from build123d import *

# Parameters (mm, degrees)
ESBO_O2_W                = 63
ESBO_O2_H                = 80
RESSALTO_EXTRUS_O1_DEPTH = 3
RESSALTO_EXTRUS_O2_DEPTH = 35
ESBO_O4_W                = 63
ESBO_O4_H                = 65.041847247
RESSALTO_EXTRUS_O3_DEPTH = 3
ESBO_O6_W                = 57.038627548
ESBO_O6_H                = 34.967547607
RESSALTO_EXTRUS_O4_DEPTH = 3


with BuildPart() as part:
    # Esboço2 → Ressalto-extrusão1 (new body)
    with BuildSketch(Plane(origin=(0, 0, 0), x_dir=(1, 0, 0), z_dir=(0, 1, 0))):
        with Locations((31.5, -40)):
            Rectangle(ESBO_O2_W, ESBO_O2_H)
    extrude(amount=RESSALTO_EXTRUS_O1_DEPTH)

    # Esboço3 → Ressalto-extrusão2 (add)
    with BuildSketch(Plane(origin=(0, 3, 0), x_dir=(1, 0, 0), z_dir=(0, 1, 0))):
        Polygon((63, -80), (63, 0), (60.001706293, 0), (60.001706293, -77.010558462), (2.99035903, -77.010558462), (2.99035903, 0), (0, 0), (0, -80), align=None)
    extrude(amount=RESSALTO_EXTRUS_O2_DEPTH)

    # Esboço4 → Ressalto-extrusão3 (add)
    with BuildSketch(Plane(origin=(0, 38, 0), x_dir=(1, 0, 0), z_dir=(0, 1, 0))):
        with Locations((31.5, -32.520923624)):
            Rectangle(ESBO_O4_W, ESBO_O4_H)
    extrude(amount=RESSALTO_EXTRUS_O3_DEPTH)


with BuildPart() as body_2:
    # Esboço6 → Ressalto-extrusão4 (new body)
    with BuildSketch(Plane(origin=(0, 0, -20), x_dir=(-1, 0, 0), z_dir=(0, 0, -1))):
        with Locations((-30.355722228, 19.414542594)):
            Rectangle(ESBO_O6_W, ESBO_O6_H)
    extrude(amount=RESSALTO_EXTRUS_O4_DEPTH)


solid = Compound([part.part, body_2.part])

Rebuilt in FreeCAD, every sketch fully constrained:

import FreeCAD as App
import Part
import Sketcher
from FreeCAD import Vector
Q = App.Units.Quantity

doc = App.newDocument("Part")
body = doc.addObject("PartDesign::Body", "Body")

# Sketch on XZ plane
sketch1 = body.newObject("Sketcher::SketchObject", "Sketch")
sketch1.AttachmentSupport = (doc.getObject("XZ_Plane"), [""])
sketch1.MapMode = "FlatFace"
sketch1.addGeometry(Part.LineSegment(Vector(0, 0, 0), Vector(0, 80, 0)), False)
sketch1.addGeometry(Part.LineSegment(Vector(0, 80, 0), Vector(63, 80, 0)), False)
sketch1.addGeometry(Part.LineSegment(Vector(63, 80, 0), Vector(63, 0, 0)), False)
sketch1.addGeometry(Part.LineSegment(Vector(63, 0, 0), Vector(0, 0, 0)), False)
sketch1.addConstraint(Sketcher.Constraint("Coincident", 0, 2, 1, 1))
sketch1.addConstraint(Sketcher.Constraint("Coincident", 1, 2, 2, 1))
sketch1.addConstraint(Sketcher.Constraint("Coincident", 2, 2, 3, 1))
sketch1.addConstraint(Sketcher.Constraint("Coincident", 3, 2, 0, 1))
sketch1.addConstraint(Sketcher.Constraint("Vertical", 0))
sketch1.addConstraint(Sketcher.Constraint("Horizontal", 1))
sketch1.addConstraint(Sketcher.Constraint("Vertical", 2))
sketch1.addConstraint(Sketcher.Constraint("Horizontal", 3))
sketch1.addConstraint(Sketcher.Constraint("Coincident", 3, 2, -1, 1))
sketch1.addConstraint(Sketcher.Constraint("DistanceX", 1, 1, 1, 2, Q("63 mm")))
sketch1.addConstraint(Sketcher.Constraint("DistanceY", 0, 1, 0, 2, Q("80 mm")))
pad1 = body.newObject("PartDesign::Pad", "Pad")
pad1.Profile = sketch1
pad1.Length = 3
pad1.Reversed = True

# Sketch on XZ plane
sketch2 = body.newObject("Sketcher::SketchObject", "Sketch001")
sketch2.AttachmentSupport = (doc.getObject("XZ_Plane"), [""])
sketch2.MapMode = "FlatFace"
sketch2.AttachmentOffset = App.Placement(Vector(0, 0, -3), App.Rotation())
sketch2.addGeometry(Part.LineSegment(Vector(63, 80, 0), Vector(63, 0, 0)), False)
sketch2.addGeometry(Part.LineSegment(Vector(63, 0, 0), Vector(60, 0, 0)), False)
sketch2.addGeometry(Part.LineSegment(Vector(60, 0, 0), Vector(60, 77, 0)), False)
sketch2.addGeometry(Part.LineSegment(Vector(60, 77, 0), Vector(3, 77, 0)), False)
sketch2.addGeometry(Part.LineSegment(Vector(3, 77, 0), Vector(3, 0, 0)), False)
sketch2.addGeometry(Part.LineSegment(Vector(3, 0, 0), Vector(0, 0, 0)), False)
sketch2.addGeometry(Part.LineSegment(Vector(0, 0, 0), Vector(0, 80, 0)), False)
sketch2.addGeometry(Part.LineSegment(Vector(0, 80, 0), Vector(63, 80, 0)), False)
sketch2.addConstraint(Sketcher.Constraint("Coincident", 0, 2, 1, 1))
sketch2.addConstraint(Sketcher.Constraint("Coincident", 1, 2, 2, 1))
sketch2.addConstraint(Sketcher.Constraint("Coincident", 2, 2, 3, 1))
sketch2.addConstraint(Sketcher.Constraint("Coincident", 3, 2, 4, 1))
sketch2.addConstraint(Sketcher.Constraint("Coincident", 4, 2, 5, 1))
sketch2.addConstraint(Sketcher.Constraint("Coincident", 5, 2, 6, 1))
sketch2.addConstraint(Sketcher.Constraint("Coincident", 6, 2, 7, 1))
sketch2.addConstraint(Sketcher.Constraint("Coincident", 7, 2, 0, 1))
sketch2.addConstraint(Sketcher.Constraint("Vertical", 0))
sketch2.addConstraint(Sketcher.Constraint("Horizontal", 1))
sketch2.addConstraint(Sketcher.Constraint("Vertical", 2))
sketch2.addConstraint(Sketcher.Constraint("Horizontal", 3))
sketch2.addConstraint(Sketcher.Constraint("Vertical", 4))
sketch2.addConstraint(Sketcher.Constraint("Horizontal", 5))
sketch2.addConstraint(Sketcher.Constraint("Vertical", 6))
sketch2.addConstraint(Sketcher.Constraint("Horizontal", 7))
sketch2.addConstraint(Sketcher.Constraint("Coincident", 5, 2, -1, 1))
sketch2.addConstraint(Sketcher.Constraint("PointOnObject", 0, 2, -1))
sketch2.addConstraint(Sketcher.Constraint("DistanceX", 7, 1, 7, 2, Q("63 mm")))
sketch2.addConstraint(Sketcher.Constraint("DistanceY", 0, 2, 0, 1, Q("80 mm")))
sketch2.addConstraint(Sketcher.Constraint("DistanceX", 5, 2, 5, 1, Q("2.990359 mm")))
sketch2.addConstraint(Sketcher.Constraint("DistanceY", 2, 1, 2, 2, Q("77.010558 mm")))
sketch2.addConstraint(Sketcher.Constraint("DistanceX", 1, 2, 1, 1, Q("2.998294 mm")))
pad2 = body.newObject("PartDesign::Pad", "Pad001")
pad2.Profile = sketch2
pad2.Length = 35
pad2.Reversed = True

# Sketch on XZ plane
sketch3 = body.newObject("Sketcher::SketchObject", "Sketch002")
sketch3.AttachmentSupport = (doc.getObject("XZ_Plane"), [""])
sketch3.MapMode = "FlatFace"
sketch3.AttachmentOffset = App.Placement(Vector(0, 0, -38), App.Rotation())
sketch3.addGeometry(Part.LineSegment(Vector(0, 0, 0), Vector(0, 65, 0)), False)
sketch3.addGeometry(Part.LineSegment(Vector(0, 65, 0), Vector(63, 65, 0)), False)
sketch3.addGeometry(Part.LineSegment(Vector(63, 65, 0), Vector(63, 0, 0)), False)
sketch3.addGeometry(Part.LineSegment(Vector(63, 0, 0), Vector(0, 0, 0)), False)
sketch3.addConstraint(Sketcher.Constraint("Coincident", 0, 2, 1, 1))
sketch3.addConstraint(Sketcher.Constraint("Coincident", 1, 2, 2, 1))
sketch3.addConstraint(Sketcher.Constraint("Coincident", 2, 2, 3, 1))
sketch3.addConstraint(Sketcher.Constraint("Coincident", 3, 2, 0, 1))
sketch3.addConstraint(Sketcher.Constraint("Vertical", 0))
sketch3.addConstraint(Sketcher.Constraint("Horizontal", 1))
sketch3.addConstraint(Sketcher.Constraint("Vertical", 2))
sketch3.addConstraint(Sketcher.Constraint("Horizontal", 3))
sketch3.addConstraint(Sketcher.Constraint("Coincident", 3, 2, -1, 1))
sketch3.addConstraint(Sketcher.Constraint("DistanceX", 1, 1, 1, 2, Q("63 mm")))
sketch3.addConstraint(Sketcher.Constraint("DistanceY", 0, 1, 0, 2, Q("65.041847 mm")))
pad3 = body.newObject("PartDesign::Pad", "Pad002")
pad3.Profile = sketch3
pad3.Length = 3
pad3.Reversed = True
body2 = doc.addObject("PartDesign::Body", "Body001")

# Sketch on XY plane
sketch4 = body2.newObject("Sketcher::SketchObject", "Sketch003")
sketch4.AttachmentSupport = (doc.getObject("XY_Plane001"), [""])
sketch4.MapMode = "FlatFace"
sketch4.AttachmentOffset = App.Placement(Vector(0, 0, -20), App.Rotation())
sketch4.addGeometry(Part.LineSegment(Vector(59, 37, 0), Vector(59, 2, 0)), False)
sketch4.addGeometry(Part.LineSegment(Vector(59, 2, 0), Vector(2, 2, 0)), False)
sketch4.addGeometry(Part.LineSegment(Vector(2, 2, 0), Vector(2, 37, 0)), False)
sketch4.addGeometry(Part.LineSegment(Vector(2, 37, 0), Vector(59, 37, 0)), False)
sketch4.addConstraint(Sketcher.Constraint("Coincident", 0, 2, 1, 1))
sketch4.addConstraint(Sketcher.Constraint("Coincident", 1, 2, 2, 1))
sketch4.addConstraint(Sketcher.Constraint("Coincident", 2, 2, 3, 1))
sketch4.addConstraint(Sketcher.Constraint("Coincident", 3, 2, 0, 1))
sketch4.addConstraint(Sketcher.Constraint("Vertical", 0))
sketch4.addConstraint(Sketcher.Constraint("Horizontal", 1))
sketch4.addConstraint(Sketcher.Constraint("Vertical", 2))
sketch4.addConstraint(Sketcher.Constraint("Horizontal", 3))
sketch4.addConstraint(Sketcher.Constraint("DistanceX", 1, 2, 1, 1, Q("57.038628 mm")))
sketch4.addConstraint(Sketcher.Constraint("DistanceY", 0, 2, 0, 1, Q("34.967548 mm")))
sketch4.addConstraint(Sketcher.Constraint("DistanceY", -1, 1, 0, 2, Q("1.930769 mm")))
sketch4.addConstraint(Sketcher.Constraint("DistanceX", -1, 1, 1, 2, Q("1.836408 mm")))
pad4 = body2.newObject("PartDesign::Pad", "Pad003")
pad4.Profile = sketch4
pad4.Length = 3
pad4.Reversed = True

doc.recompute()
